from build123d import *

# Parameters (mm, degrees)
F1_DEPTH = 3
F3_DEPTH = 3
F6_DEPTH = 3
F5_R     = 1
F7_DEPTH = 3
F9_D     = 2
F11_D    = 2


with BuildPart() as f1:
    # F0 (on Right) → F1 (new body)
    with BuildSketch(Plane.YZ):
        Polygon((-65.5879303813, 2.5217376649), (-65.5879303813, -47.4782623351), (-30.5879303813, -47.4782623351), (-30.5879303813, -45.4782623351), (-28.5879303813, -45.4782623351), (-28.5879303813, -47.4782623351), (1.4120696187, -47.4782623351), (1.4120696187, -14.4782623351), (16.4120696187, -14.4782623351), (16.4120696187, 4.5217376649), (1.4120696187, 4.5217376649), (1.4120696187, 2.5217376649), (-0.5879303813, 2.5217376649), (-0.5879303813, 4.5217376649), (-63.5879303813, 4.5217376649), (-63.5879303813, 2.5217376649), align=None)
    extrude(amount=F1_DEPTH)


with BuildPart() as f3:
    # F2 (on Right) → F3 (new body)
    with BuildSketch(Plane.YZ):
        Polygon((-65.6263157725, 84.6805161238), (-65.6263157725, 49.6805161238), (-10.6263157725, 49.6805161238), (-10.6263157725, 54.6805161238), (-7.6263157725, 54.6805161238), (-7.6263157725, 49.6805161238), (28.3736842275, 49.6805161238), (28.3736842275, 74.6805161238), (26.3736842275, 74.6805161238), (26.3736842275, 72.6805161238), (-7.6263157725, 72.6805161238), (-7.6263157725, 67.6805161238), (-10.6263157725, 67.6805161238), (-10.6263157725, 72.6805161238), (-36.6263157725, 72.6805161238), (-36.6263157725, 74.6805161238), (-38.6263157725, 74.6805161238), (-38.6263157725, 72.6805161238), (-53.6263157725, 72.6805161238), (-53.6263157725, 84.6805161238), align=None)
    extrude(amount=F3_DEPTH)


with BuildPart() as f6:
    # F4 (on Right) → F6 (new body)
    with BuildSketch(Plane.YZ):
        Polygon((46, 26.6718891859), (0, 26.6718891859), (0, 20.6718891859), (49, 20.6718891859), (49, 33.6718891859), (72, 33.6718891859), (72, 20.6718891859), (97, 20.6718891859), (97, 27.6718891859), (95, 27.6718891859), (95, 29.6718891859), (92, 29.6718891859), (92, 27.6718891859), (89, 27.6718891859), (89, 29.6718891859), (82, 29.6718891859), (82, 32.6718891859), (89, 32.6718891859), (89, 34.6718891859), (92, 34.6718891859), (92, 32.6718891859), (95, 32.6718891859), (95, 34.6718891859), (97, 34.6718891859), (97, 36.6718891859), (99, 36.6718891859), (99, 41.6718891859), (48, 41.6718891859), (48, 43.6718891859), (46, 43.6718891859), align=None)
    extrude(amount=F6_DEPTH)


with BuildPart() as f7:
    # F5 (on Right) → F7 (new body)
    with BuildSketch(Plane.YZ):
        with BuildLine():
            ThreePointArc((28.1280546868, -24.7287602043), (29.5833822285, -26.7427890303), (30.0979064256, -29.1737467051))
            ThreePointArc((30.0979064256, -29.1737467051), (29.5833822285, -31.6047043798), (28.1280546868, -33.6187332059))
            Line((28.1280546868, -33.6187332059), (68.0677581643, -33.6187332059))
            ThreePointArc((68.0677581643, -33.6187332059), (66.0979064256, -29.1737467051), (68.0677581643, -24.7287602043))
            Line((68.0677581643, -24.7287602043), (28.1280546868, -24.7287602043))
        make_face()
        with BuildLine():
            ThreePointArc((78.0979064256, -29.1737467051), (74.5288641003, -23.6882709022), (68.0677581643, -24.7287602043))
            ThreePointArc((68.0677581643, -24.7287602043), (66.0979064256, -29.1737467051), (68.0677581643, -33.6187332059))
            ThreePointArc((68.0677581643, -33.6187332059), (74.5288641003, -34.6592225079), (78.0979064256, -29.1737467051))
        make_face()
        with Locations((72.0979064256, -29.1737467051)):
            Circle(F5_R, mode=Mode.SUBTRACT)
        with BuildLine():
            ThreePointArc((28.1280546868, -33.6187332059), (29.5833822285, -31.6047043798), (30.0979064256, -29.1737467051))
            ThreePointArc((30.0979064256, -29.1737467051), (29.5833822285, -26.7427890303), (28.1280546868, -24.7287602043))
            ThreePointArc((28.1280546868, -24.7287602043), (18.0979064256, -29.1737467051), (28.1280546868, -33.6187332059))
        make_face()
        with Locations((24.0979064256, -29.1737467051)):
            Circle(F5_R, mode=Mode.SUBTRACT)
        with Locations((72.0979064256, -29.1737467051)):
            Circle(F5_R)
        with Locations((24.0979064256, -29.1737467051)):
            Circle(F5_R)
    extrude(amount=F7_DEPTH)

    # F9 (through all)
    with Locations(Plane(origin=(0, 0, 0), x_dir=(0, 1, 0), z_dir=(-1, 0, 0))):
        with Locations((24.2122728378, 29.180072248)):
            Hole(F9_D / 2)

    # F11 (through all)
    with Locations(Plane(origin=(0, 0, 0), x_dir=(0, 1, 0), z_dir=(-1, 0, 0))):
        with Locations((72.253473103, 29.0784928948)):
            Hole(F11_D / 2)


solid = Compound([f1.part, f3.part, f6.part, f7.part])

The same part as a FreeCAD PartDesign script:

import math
import FreeCAD as App
import Part
import Sketcher

V = App.Vector


def add_polygon(sketch, points):
    """Adds a closed chain of lines whose ends are joined by coincident constraints."""
    first, n = sketch.GeometryCount, len(points)
    for a, b in zip(points, points[1:] + points[:1]):
        sketch.addGeometry(Part.LineSegment(App.Vector(*a, 0), App.Vector(*b, 0)), False)
    for i in range(n):
        sketch.addConstraint(Sketcher.Constraint("Coincident", first + i, 2, first + (i + 1) % n, 1))

doc = App.newDocument("Part")
body = doc.addObject("PartDesign::Body", "Body")

# Sketch on YZ plane
sketch1 = doc.addObject("Sketcher::SketchObject", "Sketch")
body.addObject(sketch1)
sketch1.AttachmentSupport = (doc.YZ_Plane, [""])
sketch1.MapMode = "FlatFace"
add_polygon(sketch1, [(-65.6, 2.5), (-65.6, -47.5), (-30.6, -47.5), (-30.6, -45.5), (-28.6, -45.5), (-28.6, -47.5), (1.4, -47.5), (1.4, -14.5), (16.4, -14.5), (16.4, 4.5), (1.4, 4.5), (1.4, 2.5), (-0.6, 2.5), (-0.6, 4.5), (-63.6, 4.5), (-63.6, 2.5)])  # lines 0-15
sketch1.addConstraint(Sketcher.Constraint("Vertical", 0))
sketch1.addConstraint(Sketcher.Constraint("Horizontal", 1))
sketch1.addConstraint(Sketcher.Constraint("Vertical", 2))
sketch1.addConstraint(Sketcher.Constraint("Horizontal", 3))
sketch1.addConstraint(Sketcher.Constraint("Vertical", 4))
sketch1.addConstraint(Sketcher.Constraint("Horizontal", 5))
sketch1.addConstraint(Sketcher.Constraint("Vertical", 6))
sketch1.addConstraint(Sketcher.Constraint("Horizontal", 7))
sketch1.addConstraint(Sketcher.Constraint("Vertical", 8))
sketch1.addConstraint(Sketcher.Constraint("Horizontal", 9))
sketch1.addConstraint(Sketcher.Constraint("Vertical", 10))
sketch1.addConstraint(Sketcher.Constraint("Horizontal", 11))
sketch1.addConstraint(Sketcher.Constraint("Vertical", 12))
sketch1.addConstraint(Sketcher.Constraint("Horizontal", 13))
sketch1.addConstraint(Sketcher.Constraint("Vertical", 14))
sketch1.addConstraint(Sketcher.Constraint("Horizontal", 15))
sketch1.addConstraint(Sketcher.Constraint("Horizontal", 1, 2, 4, 2))
sketch1.addConstraint(Sketcher.Constraint("Horizontal", 9, 2, 12, 2))
sketch1.addConstraint(Sketcher.Constraint("Horizontal", 11, 2, 14, 2))
sketch1.addConstraint(Sketcher.Constraint("Vertical", 6, 2, 9, 2))
sketch1.addConstraint(Sketcher.Constraint("Equal", 3, 11))
sketch1.addConstraint(Sketcher.Constraint("Equal", 11, 15))
sketch1.addConstraint(Sketcher.Constraint("Equal", 15, 2))
sketch1.addConstraint(Sketcher.Constraint("Equal", 4, 10))
sketch1.addConstraint(Sketcher.Constraint("DistanceX", 1, 1, 1, 2, 35.0))
sketch1.addConstraint(Sketcher.Constraint("DistanceX", 3, 1, 3, 2, 2.0))
sketch1.addConstraint(Sketcher.Constraint("DistanceX", 5, 1, 5, 2, 30.0))
sketch1.addConstraint(Sketcher.Constraint("DistanceX", 7, 1, 7, 2, 15.0))
sketch1.addConstraint(Sketcher.Constraint("DistanceY", 0, 2, 0, 1, 50.0))
sketch1.addConstraint(Sketcher.Constraint("DistanceY", 6, 1, 6, 2, 33.0))
sketch1.addConstraint(Sketcher.Constraint("DistanceX", 0, 2, -1, 1, 65.58793))
sketch1.addConstraint(Sketcher.Constraint("DistanceY", 0, 2, -1, 1, 47.478262))
pad1 = doc.addObject("PartDesign::Pad", "Pad")
body.addObject(pad1)
pad1.Profile = sketch1
pad1.Length = 3
body2 = doc.addObject("PartDesign::Body", "Body001")

# Sketch on YZ plane
sketch2 = doc.addObject("Sketcher::SketchObject", "Sketch001")
body2.addObject(sketch2)
sketch2.AttachmentSupport = (doc.getObject("YZ_Plane001"), [""])
sketch2.MapMode = "FlatFace"
add_polygon(sketch2, [(-65.6, 84.7), (-65.6, 49.7), (-10.6, 49.7), (-10.6, 54.7), (-7.6, 54.7), (-7.6, 49.7), (28.4, 49.7), (28.4, 74.7), (26.4, 74.7), (26.4, 72.7), (-7.6, 72.7), (-7.6, 67.7), (-10.6, 67.7), (-10.6, 72.7), (-36.6, 72.7), (-36.6, 74.7), (-38.6, 74.7), (-38.6, 72.7), (-53.6, 72.7), (-53.6, 84.7)])  # lines 0-19
sketch2.addConstraint(Sketcher.Constraint("Vertical", 0))
sketch2.addConstraint(Sketcher.Constraint("Horizontal", 1))
sketch2.addConstraint(Sketcher.Constraint("Vertical", 2))
sketch2.addConstraint(Sketcher.Constraint("Horizontal", 3))
sketch2.addConstraint(Sketcher.Constraint("Vertical", 4))
sketch2.addConstraint(Sketcher.Constraint("Horizontal", 5))
sketch2.addConstraint(Sketcher.Constraint("Vertical", 6))
sketch2.addConstraint(Sketcher.Constraint("Horizontal", 7))
sketch2.addConstraint(Sketcher.Constraint("Vertical", 8))
sketch2.addConstraint(Sketcher.Constraint("Horizontal", 9))
sketch2.addConstraint(Sketcher.Constraint("Vertical", 10))
sketch2.addConstraint(Sketcher.Constraint("Horizontal", 11))
sketch2.addConstraint(Sketcher.Constraint("Vertical", 12))
sketch2.addConstraint(Sketcher.Constraint("Horizontal", 13))
sketch2.addConstraint(Sketcher.Constraint("Vertical", 14))
sketch2.addConstraint(Sketcher.Constraint("Horizontal", 15))
sketch2.addConstraint(Sketcher.Constraint("Vertical", 16))
sketch2.addConstraint(Sketcher.Constraint("Horizontal", 17))
sketch2.addConstraint(Sketcher.Constraint("Vertical", 18))
sketch2.addConstraint(Sketcher.Constraint("Horizontal", 19))
sketch2.addConstraint(Sketcher.Constraint("Horizontal", 1, 2, 4, 2))
sketch2.addConstraint(Sketcher.Constraint("Horizontal", 9, 2, 12, 2))
sketch2.addConstraint(Sketcher.Constraint("Horizontal", 7, 2, 14, 2))
sketch2.addConstraint(Sketcher.Constraint("Horizontal", 13, 2, 16, 2))
sketch2.addConstraint(Sketcher.Constraint("Vertical", 4, 2, 9, 2))
sketch2.addConstraint(Sketcher.Constraint("Vertical", 2, 2, 11, 2))
sketch2.addConstraint(Sketcher.Constraint("Equal", 7, 15))
sketch2.addConstraint(Sketcher.Constraint("Equal", 15, 8))
sketch2.addConstraint(Sketcher.Constraint("Equal", 4, 10))
sketch2.addConstraint(Sketcher.Constraint("Equal", 19, 18))
sketch2.addConstraint(Sketcher.Constraint("DistanceX", 1, 1, 1, 2, 55.0))
sketch2.addConstraint(Sketcher.Constraint("DistanceX", 3, 1, 3, 2, 3.0))
sketch2.addConstraint(Sketcher.Constraint("DistanceX", 5, 1, 5, 2, 36.0))
sketch2.addConstraint(Sketcher.Constraint("DistanceX", 7, 2, 7, 1, 2.0))
sketch2.addConstraint(Sketcher.Constraint("DistanceX", 13, 2, 13, 1, 26.0))
sketch2.addConstraint(Sketcher.Constraint("DistanceX", 17, 2, 17, 1, 15.0))
sketch2.addConstraint(Sketcher.Constraint("DistanceY", 0, 2, 0, 1, 35.0))
sketch2.addConstraint(Sketcher.Constraint("DistanceY", 2, 1, 2, 2, 5.0))
sketch2.addConstraint(Sketcher.Constraint("DistanceX", 0, 2, -1, 1, 65.626316))
sketch2.addConstraint(Sketcher.Constraint("DistanceY", -1, 1, 0, 2, 49.680516))
pad2 = doc.addObject("PartDesign::Pad", "Pad001")
body2.addObject(pad2)
pad2.Profile = sketch2
pad2.Length = 3
body3 = doc.addObject("PartDesign::Body", "Body002")

# Sketch on YZ plane
sketch3 = doc.addObject("Sketcher::SketchObject", "Sketch002")
body3.addObject(sketch3)
sketch3.AttachmentSupport = (doc.getObject("YZ_Plane002"), [""])
sketch3.MapMode = "FlatFace"
add_polygon(sketch3, [(46, 26.7), (0, 26.7), (0, 20.7), (49, 20.7), (49, 33.7), (72, 33.7), (72, 20.7), (97, 20.7), (97, 27.7), (95, 27.7), (95, 29.7), (92, 29.7), (92, 27.7), (89, 27.7), (89, 29.7), (82, 29.7), (82, 32.7), (89, 32.7), (89, 34.7), (92, 34.7), (92, 32.7), (95, 32.7), (95, 34.7), (97, 34.7), (97, 36.7), (99, 36.7), (99, 41.7), (48, 41.7), (48, 43.7), (46, 43.7)])  # lines 0-29
sketch3.addConstraint(Sketcher.Constraint("Horizontal", 0))
sketch3.addConstraint(Sketcher.Constraint("Vertical", 1))
sketch3.addConstraint(Sketcher.Constraint("Horizontal", 2))
sketch3.addConstraint(Sketcher.Constraint("Vertical", 3))
sketch3.addConstraint(Sketcher.Constraint("Horizontal", 4))
sketch3.addConstraint(Sketcher.Constraint("Vertical", 5))
sketch3.addConstraint(Sketcher.Constraint("Horizontal", 6))
sketch3.addConstraint(Sketcher.Constraint("Vertical", 7))
sketch3.addConstraint(Sketcher.Constraint("Horizontal", 8))
sketch3.addConstraint(Sketcher.Constraint("Vertical", 9))
sketch3.addConstraint(Sketcher.Constraint("Horizontal", 10))
sketch3.addConstraint(Sketcher.Constraint("Vertical", 11))
sketch3.addConstraint(Sketcher.Constraint("Horizontal", 12))
sketch3.addConstraint(Sketcher.Constraint("Vertical", 13))
sketch3.addConstraint(Sketcher.Constraint("Horizontal", 14))
sketch3.addConstraint(Sketcher.Constraint("Vertical", 15))
sketch3.addConstraint(Sketcher.Constraint("Horizontal", 16))
sketch3.addConstraint(Sketcher.Constraint("Vertical", 17))
sketch3.addConstraint(Sketcher.Constraint("Horizontal", 18))
sketch3.addConstraint(Sketcher.Constraint("Vertical", 19))
sketch3.addConstraint(Sketcher.Constraint("Horizontal", 20))
sketch3.addConstraint(Sketcher.Constraint("Vertical", 21))
sketch3.addConstraint(Sketcher.Constraint("Horizontal", 22))
sketch3.addConstraint(Sketcher.Constraint("Vertical", 23))
sketch3.addConstraint(Sketcher.Constraint("Horizontal", 24))
sketch3.addConstraint(Sketcher.Constraint("Vertical", 25))
sketch3.addConstraint(Sketcher.Constraint("Horizontal", 26))
sketch3.addConstraint(Sketcher.Constraint("Vertical", 27))
sketch3.addConstraint(Sketcher.Constraint("Horizontal", 28))
sketch3.addConstraint(Sketcher.Constraint("Vertical", 29))
sketch3.addConstraint(Sketcher.Constraint("PointOnObject", 0, 2, -2))
sketch3.addConstraint(Sketcher.Constraint("Horizontal", 2, 2, 5, 2))
sketch3.addConstraint(Sketcher.Constraint("Horizontal", 8, 2, 11, 2))
sketch3.addConstraint(Sketcher.Constraint("Horizontal", 10, 2, 13, 2))
sketch3.addConstraint(Sketcher.Constraint("Horizontal", 16, 2, 19, 2))
sketch3.addConstraint(Sketcher.Constraint("Horizontal", 18, 2, 21, 2))
sketch3.addConstraint(Sketcher.Constraint("Vertical", 13, 2, 16, 2))
sketch3.addConstraint(Sketcher.Constraint("Vertical", 11, 2, 18, 2))
sketch3.addConstraint(Sketcher.Constraint("Vertical", 9, 2, 20, 2))
sketch3.addConstraint(Sketcher.Constraint("Vertical", 7, 2, 22, 2))
sketch3.addConstraint(Sketcher.Constraint("Equal", 10, 12))
sketch3.addConstraint(Sketcher.Constraint("Equal", 22, 24))
sketch3.addConstraint(Sketcher.Constraint("Equal", 24, 28))
sketch3.addConstraint(Sketcher.Constraint("Equal", 16, 7))
sketch3.addConstraint(Sketcher.Constraint("Equal", 28, 9))
sketch3.addConstraint(Sketcher.Constraint("Equal", 20, 15))
sketch3.addConstraint(Sketcher.Constraint("Equal", 13, 17))
sketch3.addConstraint(Sketcher.Constraint("Equal", 21, 23))
sketch3.addConstraint(Sketcher.Constraint("Equal", 23, 27))
sketch3.addConstraint(Sketcher.Constraint("DistanceX", 0, 2, 0, 1, 46.0))
sketch3.addConstraint(Sketcher.Constraint("DistanceX", 2, 1, 2, 2, 49.0))
sketch3.addConstraint(Sketcher.Constraint("DistanceX", 4, 1, 4, 2, 23.0))
sketch3.addConstraint(Sketcher.Constraint("DistanceX", 6, 1, 6, 2, 25.0))
sketch3.addConstraint(Sketcher.Constraint("DistanceX", 8, 2, 8, 1, 2.0))
sketch3.addConstraint(Sketcher.Constraint("DistanceX", 10, 2, 10, 1, 3.0))
sketch3.addConstraint(Sketcher.Constraint("DistanceX", 14, 2, 14, 1, 7.0))
sketch3.addConstraint(Sketcher.Constraint("DistanceY", 1, 2, 1, 1, 6.0))
sketch3.addConstraint(Sketcher.Constraint("DistanceY", 3, 1, 3, 2, 13.0))
sketch3.addConstraint(Sketcher.Constraint("DistanceY", 25, 1, 25, 2, 5.0))
sketch3.addConstraint(Sketcher.Constraint("DistanceY", -1, 1, 0, 2, 26.671889))
pad3 = doc.addObject("PartDesign::Pad", "Pad002")
body3.addObject(pad3)
pad3.Profile = sketch3
pad3.Length = 3
body4 = doc.addObject("PartDesign::Body", "Body003")

# Sketch on YZ plane
sketch4 = doc.addObject("Sketcher::SketchObject", "Sketch003")
body4.addObject(sketch4)
sketch4.AttachmentSupport = (doc.getObject("YZ_Plane003"), [""])
sketch4.MapMode = "FlatFace"
sketch4.addGeometry(Part.LineSegment(V(68, -25, 0), V(28, -25, 0)), False)
sketch4.addGeometry(Part.ArcOfCircle(Part.Circle(V(24, -29, 0), V(0, 0, 1), 6), math.radians(48), math.radians(312)), False)
sketch4.addGeometry(Part.LineSegment(V(28, -34, 0), V(68, -34, 0)), False)
sketch4.addGeometry(Part.ArcOfCircle(Part.Circle(V(72, -29, 0), V(0, 0, 1), 6), math.radians(-132), math.radians(0)), False)
sketch4.addGeometry(Part.ArcOfCircle(Part.Circle(V(72, -29, 0), V(0, 0, 1), 6), math.radians(0), math.radians(132)), False)
sketch4.addConstraint(Sketcher.Constraint("Coincident", 0, 2, 1, 1))
sketch4.addConstraint(Sketcher.Constraint("Coincident", 1, 2, 2, 1))
sketch4.addConstraint(Sketcher.Constraint("Coincident", 2, 2, 3, 1))
sketch4.addConstraint(Sketcher.Constraint("Tangent", 3, 2, 4, 1))
sketch4.addConstraint(Sketcher.Constraint("Coincident", 4, 2, 0, 1))
sketch4.addConstraint(Sketcher.Constraint("Horizontal", 0))
sketch4.addConstraint(Sketcher.Constraint("Horizontal", 2))
sketch4.addConstraint(Sketcher.Constraint("Equal", 1, 3))
sketch4.addConstraint(Sketcher.Constraint("Equal", 3, 4))
sketch4.addConstraint(Sketcher.Constraint("Horizontal", 1, 3, 3, 3))
sketch4.addConstraint(Sketcher.Constraint("Horizontal", 4, 3, 3, 2))
sketch4.addConstraint(Sketcher.Constraint("Vertical", 0, 2, 1, 2))
sketch4.addConstraint(Sketcher.Constraint("Radius", 1, 6.0))
sketch4.addConstraint(Sketcher.Constraint("DistanceX", 1, 3, 3, 3, 48.0))
sketch4.addConstraint(Sketcher.Constraint("DistanceX", 0, 2, 0, 1, 39.939703))
sketch4.addConstraint(Sketcher.Constraint("DistanceY", 0, 2, -1, 1, 24.72876))
sketch4.addConstraint(Sketcher.Constraint("DistanceX", -1, 1, 2, 2, 68.067758))
pad4 = doc.addObject("PartDesign::Pad", "Pad003")
body4.addObject(pad4)
pad4.Profile = sketch4
pad4.Length = 3

# Sketch on YZ plane
sketch5 = doc.addObject("Sketcher::SketchObject", "Sketch004")
body4.addObject(sketch5)
sketch5.AttachmentSupport = (doc.getObject("YZ_Plane003"), [""])
sketch5.MapMode = "FlatFace"
sketch5.addGeometry(Part.Circle(V(24.2, -29.2, 0), V(0, 0, 1), 1), False)
sketch5.addConstraint(Sketcher.Constraint("Diameter", 0, 2.0))
sketch5.addConstraint(Sketcher.Constraint("DistanceX", -1, 1, 0, 3, 24.212273))
sketch5.addConstraint(Sketcher.Constraint("DistanceY", 0, 3, -1, 1, 29.180072))
doc.recompute()
hole = doc.addObject("PartDesign::Hole", "Hole")
body4.addObject(hole)
hole.Profile = sketch5
hole.ThreadType = "None"
hole.Diameter = 2
hole.DepthType = "ThroughAll"
hole.Reversed = True

# Sketch on YZ plane
sketch6 = doc.addObject("Sketcher::SketchObject", "Sketch005")
body4.addObject(sketch6)
sketch6.AttachmentSupport = (doc.getObject("YZ_Plane003"), [""])
sketch6.MapMode = "FlatFace"
sketch6.addGeometry(Part.Circle(V(72.3, -29.1, 0), V(0, 0, 1), 1), False)
sketch6.addConstraint(Sketcher.Constraint("Diameter", 0, 2.0))
sketch6.addConstraint(Sketcher.Constraint("DistanceX", -1, 1, 0, 3, 72.253473))
sketch6.addConstraint(Sketcher.Constraint("DistanceY", 0, 3, -1, 1, 29.078493))
doc.recompute()
hole2 = doc.addObject("PartDesign::Hole", "Hole001")
body4.addObject(hole2)
hole2.Profile = sketch6
hole2.ThreadType = "None"
hole2.Diameter = 2
hole2.DepthType = "ThroughAll"
hole2.Reversed = True

doc.recompute()
